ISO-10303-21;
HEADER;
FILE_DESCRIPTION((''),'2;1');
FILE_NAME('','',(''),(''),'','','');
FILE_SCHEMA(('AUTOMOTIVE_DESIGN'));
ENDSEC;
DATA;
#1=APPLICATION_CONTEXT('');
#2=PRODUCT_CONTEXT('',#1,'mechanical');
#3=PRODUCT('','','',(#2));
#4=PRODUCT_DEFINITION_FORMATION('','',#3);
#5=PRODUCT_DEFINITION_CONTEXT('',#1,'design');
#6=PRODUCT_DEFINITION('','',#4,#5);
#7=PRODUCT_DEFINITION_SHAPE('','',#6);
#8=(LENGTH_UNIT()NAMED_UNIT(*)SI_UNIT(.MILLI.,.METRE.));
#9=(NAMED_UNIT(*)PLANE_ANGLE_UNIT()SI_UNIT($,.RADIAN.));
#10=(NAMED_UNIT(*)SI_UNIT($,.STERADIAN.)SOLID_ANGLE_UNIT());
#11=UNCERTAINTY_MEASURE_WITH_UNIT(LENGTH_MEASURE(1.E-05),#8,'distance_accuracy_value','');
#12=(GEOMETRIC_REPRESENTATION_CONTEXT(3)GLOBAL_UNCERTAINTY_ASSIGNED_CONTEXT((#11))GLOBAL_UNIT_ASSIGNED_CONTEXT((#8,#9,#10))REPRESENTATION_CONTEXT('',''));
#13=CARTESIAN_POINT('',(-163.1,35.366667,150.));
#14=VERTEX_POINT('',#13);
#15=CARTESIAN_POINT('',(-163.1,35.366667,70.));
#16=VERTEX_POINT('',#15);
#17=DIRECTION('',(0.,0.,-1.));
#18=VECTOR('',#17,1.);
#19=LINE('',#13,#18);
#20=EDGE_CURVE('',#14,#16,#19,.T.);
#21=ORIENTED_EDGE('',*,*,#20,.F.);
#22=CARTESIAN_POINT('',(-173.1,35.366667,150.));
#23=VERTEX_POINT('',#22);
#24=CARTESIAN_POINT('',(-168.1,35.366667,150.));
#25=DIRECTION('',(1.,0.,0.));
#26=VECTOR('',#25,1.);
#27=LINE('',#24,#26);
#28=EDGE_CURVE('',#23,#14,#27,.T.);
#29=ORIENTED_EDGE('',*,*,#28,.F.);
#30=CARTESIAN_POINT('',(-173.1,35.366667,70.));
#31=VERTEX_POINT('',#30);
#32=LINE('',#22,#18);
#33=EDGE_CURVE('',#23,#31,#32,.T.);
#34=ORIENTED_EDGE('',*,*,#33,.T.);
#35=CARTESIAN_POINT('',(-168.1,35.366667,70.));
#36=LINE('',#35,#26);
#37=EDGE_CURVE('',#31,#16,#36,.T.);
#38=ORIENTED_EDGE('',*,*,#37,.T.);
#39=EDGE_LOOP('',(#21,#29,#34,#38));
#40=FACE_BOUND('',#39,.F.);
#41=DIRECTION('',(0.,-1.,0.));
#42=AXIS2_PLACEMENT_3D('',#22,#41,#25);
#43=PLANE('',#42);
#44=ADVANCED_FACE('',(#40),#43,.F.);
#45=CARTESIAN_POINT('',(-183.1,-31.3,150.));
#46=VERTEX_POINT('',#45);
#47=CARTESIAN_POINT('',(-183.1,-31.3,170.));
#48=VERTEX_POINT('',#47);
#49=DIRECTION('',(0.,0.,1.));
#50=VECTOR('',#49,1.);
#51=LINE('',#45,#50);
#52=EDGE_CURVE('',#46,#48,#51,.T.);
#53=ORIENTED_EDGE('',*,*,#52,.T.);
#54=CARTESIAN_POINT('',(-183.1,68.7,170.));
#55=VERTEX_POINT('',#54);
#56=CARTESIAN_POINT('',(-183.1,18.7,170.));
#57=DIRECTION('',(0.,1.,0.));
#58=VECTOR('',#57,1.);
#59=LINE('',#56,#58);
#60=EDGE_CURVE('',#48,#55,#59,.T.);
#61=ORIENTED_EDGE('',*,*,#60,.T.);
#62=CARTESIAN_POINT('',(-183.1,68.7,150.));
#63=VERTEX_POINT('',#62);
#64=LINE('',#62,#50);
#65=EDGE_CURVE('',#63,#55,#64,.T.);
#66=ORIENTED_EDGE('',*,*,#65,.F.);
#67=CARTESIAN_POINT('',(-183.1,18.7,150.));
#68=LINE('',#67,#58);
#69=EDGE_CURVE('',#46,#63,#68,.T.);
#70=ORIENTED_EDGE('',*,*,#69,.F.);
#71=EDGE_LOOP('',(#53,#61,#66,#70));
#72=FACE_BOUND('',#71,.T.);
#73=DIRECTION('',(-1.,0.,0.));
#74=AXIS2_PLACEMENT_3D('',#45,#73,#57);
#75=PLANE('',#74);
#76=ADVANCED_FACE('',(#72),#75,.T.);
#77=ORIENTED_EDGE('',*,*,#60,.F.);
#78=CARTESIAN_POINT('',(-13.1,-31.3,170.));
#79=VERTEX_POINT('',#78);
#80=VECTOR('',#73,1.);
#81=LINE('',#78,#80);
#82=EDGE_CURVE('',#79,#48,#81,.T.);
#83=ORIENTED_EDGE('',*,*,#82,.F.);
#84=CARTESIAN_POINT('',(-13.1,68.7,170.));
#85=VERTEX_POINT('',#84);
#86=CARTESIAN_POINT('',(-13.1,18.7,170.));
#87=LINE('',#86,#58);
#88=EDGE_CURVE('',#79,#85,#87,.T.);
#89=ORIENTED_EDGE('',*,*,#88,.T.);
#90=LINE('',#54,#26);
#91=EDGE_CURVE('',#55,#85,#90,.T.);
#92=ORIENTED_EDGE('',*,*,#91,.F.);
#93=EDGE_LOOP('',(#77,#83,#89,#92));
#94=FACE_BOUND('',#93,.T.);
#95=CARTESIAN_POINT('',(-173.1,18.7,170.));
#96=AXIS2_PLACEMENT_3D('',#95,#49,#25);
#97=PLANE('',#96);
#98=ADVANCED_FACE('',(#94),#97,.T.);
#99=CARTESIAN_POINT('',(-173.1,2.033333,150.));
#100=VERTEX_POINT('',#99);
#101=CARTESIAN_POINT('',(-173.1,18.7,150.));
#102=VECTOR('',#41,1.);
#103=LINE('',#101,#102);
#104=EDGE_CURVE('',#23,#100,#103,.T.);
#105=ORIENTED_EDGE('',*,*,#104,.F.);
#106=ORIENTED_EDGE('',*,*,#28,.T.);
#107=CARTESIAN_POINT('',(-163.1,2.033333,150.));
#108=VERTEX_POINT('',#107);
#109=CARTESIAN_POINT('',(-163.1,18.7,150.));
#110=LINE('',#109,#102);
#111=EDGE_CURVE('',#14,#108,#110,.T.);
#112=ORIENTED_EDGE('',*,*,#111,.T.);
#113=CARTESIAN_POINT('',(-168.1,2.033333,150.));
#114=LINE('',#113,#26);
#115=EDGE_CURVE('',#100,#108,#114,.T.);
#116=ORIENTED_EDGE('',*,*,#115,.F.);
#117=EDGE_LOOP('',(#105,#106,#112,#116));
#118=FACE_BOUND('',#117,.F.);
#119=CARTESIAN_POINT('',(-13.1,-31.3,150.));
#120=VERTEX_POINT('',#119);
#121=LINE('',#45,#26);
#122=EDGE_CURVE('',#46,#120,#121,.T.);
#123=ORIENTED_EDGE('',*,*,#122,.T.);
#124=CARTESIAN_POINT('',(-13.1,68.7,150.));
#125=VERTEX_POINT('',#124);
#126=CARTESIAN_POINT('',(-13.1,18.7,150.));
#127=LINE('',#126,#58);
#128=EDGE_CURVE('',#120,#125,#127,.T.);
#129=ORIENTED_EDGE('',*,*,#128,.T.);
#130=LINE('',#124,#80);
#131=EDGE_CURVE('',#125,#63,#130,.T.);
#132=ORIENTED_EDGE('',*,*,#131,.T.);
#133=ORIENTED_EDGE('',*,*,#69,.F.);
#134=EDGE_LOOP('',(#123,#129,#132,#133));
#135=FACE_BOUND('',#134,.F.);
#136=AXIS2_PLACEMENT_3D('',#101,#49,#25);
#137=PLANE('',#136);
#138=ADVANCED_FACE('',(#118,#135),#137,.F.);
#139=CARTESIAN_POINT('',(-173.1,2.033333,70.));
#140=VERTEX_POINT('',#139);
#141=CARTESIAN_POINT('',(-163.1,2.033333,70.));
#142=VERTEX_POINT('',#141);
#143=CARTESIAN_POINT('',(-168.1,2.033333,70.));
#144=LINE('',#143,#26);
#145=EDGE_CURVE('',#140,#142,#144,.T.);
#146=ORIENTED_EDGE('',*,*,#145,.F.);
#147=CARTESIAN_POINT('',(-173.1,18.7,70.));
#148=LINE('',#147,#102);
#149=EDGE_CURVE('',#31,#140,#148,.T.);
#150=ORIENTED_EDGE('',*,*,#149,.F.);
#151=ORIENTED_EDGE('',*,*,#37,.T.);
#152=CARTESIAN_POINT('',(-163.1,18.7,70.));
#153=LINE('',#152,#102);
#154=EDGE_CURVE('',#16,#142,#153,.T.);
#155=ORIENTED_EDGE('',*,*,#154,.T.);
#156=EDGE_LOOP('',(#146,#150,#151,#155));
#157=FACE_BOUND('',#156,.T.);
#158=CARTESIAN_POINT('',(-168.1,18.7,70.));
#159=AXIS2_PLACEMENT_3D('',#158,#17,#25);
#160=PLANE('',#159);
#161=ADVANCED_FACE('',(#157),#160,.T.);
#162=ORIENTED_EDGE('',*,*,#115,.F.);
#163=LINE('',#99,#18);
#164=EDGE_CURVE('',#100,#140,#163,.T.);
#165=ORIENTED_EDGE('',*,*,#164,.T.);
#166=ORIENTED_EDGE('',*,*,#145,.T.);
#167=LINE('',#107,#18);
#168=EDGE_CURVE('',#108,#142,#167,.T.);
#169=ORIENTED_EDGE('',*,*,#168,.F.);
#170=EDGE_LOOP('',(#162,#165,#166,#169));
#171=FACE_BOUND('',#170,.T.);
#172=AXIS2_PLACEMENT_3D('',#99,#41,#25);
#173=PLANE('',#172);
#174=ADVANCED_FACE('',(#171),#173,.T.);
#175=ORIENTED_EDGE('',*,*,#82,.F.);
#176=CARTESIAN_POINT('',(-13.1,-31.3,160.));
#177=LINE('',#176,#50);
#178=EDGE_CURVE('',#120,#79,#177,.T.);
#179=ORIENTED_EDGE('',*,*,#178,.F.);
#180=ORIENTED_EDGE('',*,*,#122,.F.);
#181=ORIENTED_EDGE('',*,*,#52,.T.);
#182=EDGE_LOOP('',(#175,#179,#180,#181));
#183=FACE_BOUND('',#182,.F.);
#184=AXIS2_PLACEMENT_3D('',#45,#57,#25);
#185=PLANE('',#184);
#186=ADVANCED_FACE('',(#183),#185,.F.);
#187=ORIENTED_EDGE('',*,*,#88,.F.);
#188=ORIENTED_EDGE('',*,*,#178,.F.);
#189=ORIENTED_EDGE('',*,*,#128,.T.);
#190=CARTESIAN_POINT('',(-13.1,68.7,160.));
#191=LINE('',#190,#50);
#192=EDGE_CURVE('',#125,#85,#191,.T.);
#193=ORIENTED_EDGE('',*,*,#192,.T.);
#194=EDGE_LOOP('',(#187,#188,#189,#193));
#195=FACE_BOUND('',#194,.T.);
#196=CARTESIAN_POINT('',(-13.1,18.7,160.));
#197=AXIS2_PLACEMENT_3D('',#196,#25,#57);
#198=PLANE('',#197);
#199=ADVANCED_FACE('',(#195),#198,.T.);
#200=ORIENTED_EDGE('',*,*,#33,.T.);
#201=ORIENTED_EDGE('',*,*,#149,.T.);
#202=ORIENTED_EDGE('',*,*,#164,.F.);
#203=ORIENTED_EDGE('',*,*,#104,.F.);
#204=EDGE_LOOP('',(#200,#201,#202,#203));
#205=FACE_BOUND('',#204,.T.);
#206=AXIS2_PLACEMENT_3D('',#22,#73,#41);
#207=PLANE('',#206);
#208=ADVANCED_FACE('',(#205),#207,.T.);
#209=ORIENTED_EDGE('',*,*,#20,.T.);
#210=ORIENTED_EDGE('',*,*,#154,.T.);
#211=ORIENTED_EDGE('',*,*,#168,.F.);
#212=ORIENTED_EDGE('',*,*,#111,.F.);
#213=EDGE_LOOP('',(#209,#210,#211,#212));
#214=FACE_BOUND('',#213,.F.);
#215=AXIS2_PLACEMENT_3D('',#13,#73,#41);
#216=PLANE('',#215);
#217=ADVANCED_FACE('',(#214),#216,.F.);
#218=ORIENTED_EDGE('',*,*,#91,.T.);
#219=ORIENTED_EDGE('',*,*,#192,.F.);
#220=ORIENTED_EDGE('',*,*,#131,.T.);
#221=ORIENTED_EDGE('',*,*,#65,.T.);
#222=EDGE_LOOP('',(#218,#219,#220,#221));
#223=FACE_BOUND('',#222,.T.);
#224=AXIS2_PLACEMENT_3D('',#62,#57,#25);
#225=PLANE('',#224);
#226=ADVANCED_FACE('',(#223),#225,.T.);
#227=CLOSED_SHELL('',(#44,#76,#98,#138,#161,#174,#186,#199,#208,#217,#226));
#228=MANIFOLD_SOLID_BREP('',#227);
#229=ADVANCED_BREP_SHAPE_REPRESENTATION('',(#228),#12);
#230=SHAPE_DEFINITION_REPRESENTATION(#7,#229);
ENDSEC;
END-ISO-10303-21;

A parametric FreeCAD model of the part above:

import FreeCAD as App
import Part
import Sketcher

V = App.Vector
Q = App.Units.Quantity

doc = App.newDocument("Part")
body = doc.addObject("PartDesign::Body", "Body")

# Sketch on YZ plane
sketch1 = body.newObject("Sketcher::SketchObject", "Sketch")
sketch1.AttachmentSupport = (doc.getObject("YZ_Plane"), [""])
sketch1.MapMode = "FlatFace"
sketch1.AttachmentOffset = App.Placement(V(0, 0, -163.1), App.Rotation())
sketch1.addGeometry(Part.LineSegment(V(-31, 170, 0), V(-31, 150, 0)), False)
sketch1.addGeometry(Part.LineSegment(V(-31, 150, 0), V(69, 150, 0)), False)
sketch1.addGeometry(Part.LineSegment(V(69, 150, 0), V(69, 170, 0)), False)
sketch1.addGeometry(Part.LineSegment(V(69, 170, 0), V(-31, 170, 0)), False)
sketch1.addConstraint(Sketcher.Constraint("Coincident", 0, 2, 1, 1))
sketch1.addConstraint(Sketcher.Constraint("Coincident", 1, 2, 2, 1))
sketch1.addConstraint(Sketcher.Constraint("Coincident", 2, 2, 3, 1))
sketch1.addConstraint(Sketcher.Constraint("Coincident", 3, 2, 0, 1))
sketch1.addConstraint(Sketcher.Constraint("Vertical", 0))
sketch1.addConstraint(Sketcher.Constraint("Horizontal", 1))
sketch1.addConstraint(Sketcher.Constraint("Vertical", 2))
sketch1.addConstraint(Sketcher.Constraint("Horizontal", 3))
sketch1.addConstraint(Sketcher.Constraint("DistanceX", 1, 1, 1, 2, Q("100 mm")))
sketch1.addConstraint(Sketcher.Constraint("DistanceY", 0, 2, 0, 1, Q("20 mm")))
sketch1.addConstraint(Sketcher.Constraint("DistanceY", -1, 1, 0, 2, Q("150 mm")))
sketch1.addConstraint(Sketcher.Constraint("DistanceX", 0, 2, -1, 1, Q("31.3 mm")))
pad1 = body.newObject("PartDesign::Pad", "Pad")
pad1.Profile = sketch1
pad1.Length = 150
body2 = doc.addObject("PartDesign::Body", "Body001")

# Sketch on XY plane
sketch2 = body2.newObject("Sketcher::SketchObject", "Sketch001")
sketch2.AttachmentSupport = (doc.getObject("XY_Plane001"), [""])
sketch2.MapMode = "FlatFace"
sketch2.AttachmentOffset = App.Placement(V(0, 0, 150), App.Rotation())
sketch2.addGeometry(Part.LineSegment(V(-183, 69, 0), V(-183, -31, 0)), False)
sketch2.addGeometry(Part.LineSegment(V(-183, -31, 0), V(-163, -31, 0)), False)
sketch2.addGeometry(Part.LineSegment(V(-163, -31, 0), V(-163, 69, 0)), False)
sketch2.addGeometry(Part.LineSegment(V(-163, 69, 0), V(-183, 69, 0)), False)
sketch2.addConstraint(Sketcher.Constraint("Coincident", 0, 2, 1, 1))
sketch2.addConstraint(Sketcher.Constraint("Coincident", 1, 2, 2, 1))
sketch2.addConstraint(Sketcher.Constraint("Coincident", 2, 2, 3, 1))
sketch2.addConstraint(Sketcher.Constraint("Coincident", 3, 2, 0, 1))
sketch2.addConstraint(Sketcher.Constraint("Vertical", 0))
sketch2.addConstraint(Sketcher.Constraint("Horizontal", 1))
sketch2.addConstraint(Sketcher.Constraint("Vertical", 2))
sketch2.addConstraint(Sketcher.Constraint("Horizontal", 3))
sketch2.addConstraint(Sketcher.Constraint("DistanceX", 1, 1, 1, 2, Q("20 mm")))
sketch2.addConstraint(Sketcher.Constraint("DistanceY", 0, 2, 0, 1, Q("100 mm")))
sketch2.addConstraint(Sketcher.Constraint("DistanceX", 0, 2, -1, 1, Q("183.1 mm")))
sketch2.addConstraint(Sketcher.Constraint("DistanceY", 0, 2, -1, 1, Q("31.3 mm")))
pad2 = body2.newObject("PartDesign::Pad", "Pad001")
pad2.Profile = sketch2
pad2.Length = 20
body3 = doc.addObject("PartDesign::Body", "Body002")
body3.AllowCompound = True

# Sketch on XY plane
sketch3 = body3.newObject("Sketcher::SketchObject", "Sketch002")
sketch3.AttachmentSupport = (doc.getObject("XY_Plane002"), [""])
sketch3.MapMode = "FlatFace"
sketch3.AttachmentOffset = App.Placement(V(0, 0, 150), App.Rotation())
sketch3.addGeometry(Part.LineSegment(V(-173, 2, 0), V(-173, 35, 0)), False)
sketch3.addGeometry(Part.LineSegment(V(-173, 35, 0), V(-163, 35, 0)), False)
sketch3.addGeometry(Part.LineSegment(V(-163, 35, 0), V(-163, 2, 0)), False)
sketch3.addGeometry(Part.LineSegment(V(-163, 2, 0), V(-173, 2, 0)), False)
sketch3.addConstraint(Sketcher.Constraint("Coincident", 0, 2, 1, 1))
sketch3.addConstraint(Sketcher.Constraint("Coincident", 1, 2, 2, 1))
sketch3.addConstraint(Sketcher.Constraint("Coincident", 2, 2, 3, 1))
sketch3.addConstraint(Sketcher.Constraint("Coincident", 3, 2, 0, 1))
sketch3.addConstraint(Sketcher.Constraint("Vertical", 0))
sketch3.addConstraint(Sketcher.Constraint("Horizontal", 1))
sketch3.addConstraint(Sketcher.Constraint("Vertical", 2))
sketch3.addConstraint(Sketcher.Constraint("Horizontal", 3))
sketch3.addConstraint(Sketcher.Constraint("DistanceX", 1, 1, 1, 2, Q("10 mm")))
sketch3.addConstraint(Sketcher.Constraint("DistanceX", 0, 2, -1, 1, Q("173.1 mm")))
sketch3.addConstraint(Sketcher.Constraint("DistanceY", 0, 1, 0, 2, Q("33.333334 mm")))
sketch3.addConstraint(Sketcher.Constraint("DistanceY", -1, 1, 0, 2, Q("35.366667 mm")))
pad3 = body3.newObject("PartDesign::Pad", "Pad002")
pad3.Profile = sketch3
pad3.Length = 80
pad3.Reversed = True
doc.recompute()

boolean = body3.newObject("PartDesign::Boolean", "Boolean")
boolean.Type = "Fuse"
boolean.addObjects([body])
doc.recompute()

boolean2 = body3.newObject("PartDesign::Boolean", "Boolean001")
boolean2.Type = "Fuse"
boolean2.addObjects([body2])

doc.recompute()
